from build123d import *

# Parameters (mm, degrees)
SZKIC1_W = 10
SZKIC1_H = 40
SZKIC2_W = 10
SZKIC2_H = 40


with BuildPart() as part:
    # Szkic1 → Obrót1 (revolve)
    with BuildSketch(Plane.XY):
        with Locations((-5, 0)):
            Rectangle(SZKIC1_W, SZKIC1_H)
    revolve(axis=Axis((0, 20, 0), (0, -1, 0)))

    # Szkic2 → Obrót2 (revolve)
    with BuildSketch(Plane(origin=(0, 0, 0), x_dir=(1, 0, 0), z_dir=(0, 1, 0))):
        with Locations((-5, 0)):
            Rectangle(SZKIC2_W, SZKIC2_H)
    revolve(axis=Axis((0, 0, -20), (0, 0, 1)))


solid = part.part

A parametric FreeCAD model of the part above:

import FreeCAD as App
import Part
import Sketcher

V = App.Vector
Q = App.Units.Quantity

doc = App.newDocument("Part")
body = doc.addObject("PartDesign::Body", "Body")

sketch1 = doc.addObject("Sketcher::SketchObject", "Sketch")
body.addObject(sketch1)
sketch1.AttachmentSupport = (doc.XY_Plane, [""])
sketch1.MapMode = "FlatFace"
sketch1.addGeometry([
    Part.LineSegment(V(-10, 20, 0), V(-10, -20, 0)),
    Part.LineSegment(V(-10, -20, 0), V(0, -20, 0)),
    Part.LineSegment(V(0, -20, 0), V(0, 20, 0)),
    Part.LineSegment(V(0, 20, 0), V(-10, 20, 0)),
], False)
sketch1.addConstraint([
    Sketcher.Constraint("Coincident", 0, 2, 1, 1),
    Sketcher.Constraint("Coincident", 1, 2, 2, 1),
    Sketcher.Constraint("Coincident", 2, 2, 3, 1),
    Sketcher.Constraint("Coincident", 3, 2, 0, 1),
    Sketcher.Constraint("Vertical", 0),
    Sketcher.Constraint("Horizontal", 1),
    Sketcher.Constraint("Vertical", 2),
    Sketcher.Constraint("Horizontal", 3),
    Sketcher.Constraint("Symmetric", 1, 2, 2, 2, -1, 1),
    Sketcher.Constraint("DistanceX", 1, 1, 1, 2, Q("10 mm")),
    Sketcher.Constraint("DistanceY", 0, 2, 0, 1, Q("40 mm")),
])
revolution = doc.addObject("PartDesign::Revolution", "Revolution")
body.addObject(revolution)
revolution.Profile = sketch1
revolution.ReferenceAxis = (sketch1, ["V_Axis"])
revolution.Angle = 360

sketch2 = doc.addObject("Sketcher::SketchObject", "Sketch001")
body.addObject(sketch2)
sketch2.AttachmentSupport = (doc.XZ_Plane, [""])
sketch2.MapMode = "FlatFace"
sketch2.addGeometry([
    Part.LineSegment(V(-10, -20, 0), V(-10, 20, 0)),
    Part.LineSegment(V(-10, 20, 0), V(0, 20, 0)),
    Part.LineSegment(V(0, 20, 0), V(0, -20, 0)),
    Part.LineSegment(V(0, -20, 0), V(-10, -20, 0)),
], False)
sketch2.addConstraint([
    Sketcher.Constraint("Coincident", 0, 2, 1, 1),
    Sketcher.Constraint("Coincident", 1, 2, 2, 1),
    Sketcher.Constraint("Coincident", 2, 2, 3, 1),
    Sketcher.Constraint("Coincident", 3, 2, 0, 1),
    Sketcher.Constraint("Vertical", 0),
    Sketcher.Constraint("Horizontal", 1),
    Sketcher.Constraint("Vertical", 2),
    Sketcher.Constraint("Horizontal", 3),
    Sketcher.Constraint("Symmetric", 1, 2, 2, 2, -1, 1),
    Sketcher.Constraint("DistanceX", 1, 1, 1, 2, Q("10 mm")),
    Sketcher.Constraint("DistanceY", 0, 1, 0, 2, Q("40 mm")),
])
revolution2 = doc.addObject("PartDesign::Revolution", "Revolution001")
body.addObject(revolution2)
revolution2.Profile = sketch2
revolution2.ReferenceAxis = (sketch2, ["V_Axis"])
revolution2.Angle = 360

doc.recompute()
